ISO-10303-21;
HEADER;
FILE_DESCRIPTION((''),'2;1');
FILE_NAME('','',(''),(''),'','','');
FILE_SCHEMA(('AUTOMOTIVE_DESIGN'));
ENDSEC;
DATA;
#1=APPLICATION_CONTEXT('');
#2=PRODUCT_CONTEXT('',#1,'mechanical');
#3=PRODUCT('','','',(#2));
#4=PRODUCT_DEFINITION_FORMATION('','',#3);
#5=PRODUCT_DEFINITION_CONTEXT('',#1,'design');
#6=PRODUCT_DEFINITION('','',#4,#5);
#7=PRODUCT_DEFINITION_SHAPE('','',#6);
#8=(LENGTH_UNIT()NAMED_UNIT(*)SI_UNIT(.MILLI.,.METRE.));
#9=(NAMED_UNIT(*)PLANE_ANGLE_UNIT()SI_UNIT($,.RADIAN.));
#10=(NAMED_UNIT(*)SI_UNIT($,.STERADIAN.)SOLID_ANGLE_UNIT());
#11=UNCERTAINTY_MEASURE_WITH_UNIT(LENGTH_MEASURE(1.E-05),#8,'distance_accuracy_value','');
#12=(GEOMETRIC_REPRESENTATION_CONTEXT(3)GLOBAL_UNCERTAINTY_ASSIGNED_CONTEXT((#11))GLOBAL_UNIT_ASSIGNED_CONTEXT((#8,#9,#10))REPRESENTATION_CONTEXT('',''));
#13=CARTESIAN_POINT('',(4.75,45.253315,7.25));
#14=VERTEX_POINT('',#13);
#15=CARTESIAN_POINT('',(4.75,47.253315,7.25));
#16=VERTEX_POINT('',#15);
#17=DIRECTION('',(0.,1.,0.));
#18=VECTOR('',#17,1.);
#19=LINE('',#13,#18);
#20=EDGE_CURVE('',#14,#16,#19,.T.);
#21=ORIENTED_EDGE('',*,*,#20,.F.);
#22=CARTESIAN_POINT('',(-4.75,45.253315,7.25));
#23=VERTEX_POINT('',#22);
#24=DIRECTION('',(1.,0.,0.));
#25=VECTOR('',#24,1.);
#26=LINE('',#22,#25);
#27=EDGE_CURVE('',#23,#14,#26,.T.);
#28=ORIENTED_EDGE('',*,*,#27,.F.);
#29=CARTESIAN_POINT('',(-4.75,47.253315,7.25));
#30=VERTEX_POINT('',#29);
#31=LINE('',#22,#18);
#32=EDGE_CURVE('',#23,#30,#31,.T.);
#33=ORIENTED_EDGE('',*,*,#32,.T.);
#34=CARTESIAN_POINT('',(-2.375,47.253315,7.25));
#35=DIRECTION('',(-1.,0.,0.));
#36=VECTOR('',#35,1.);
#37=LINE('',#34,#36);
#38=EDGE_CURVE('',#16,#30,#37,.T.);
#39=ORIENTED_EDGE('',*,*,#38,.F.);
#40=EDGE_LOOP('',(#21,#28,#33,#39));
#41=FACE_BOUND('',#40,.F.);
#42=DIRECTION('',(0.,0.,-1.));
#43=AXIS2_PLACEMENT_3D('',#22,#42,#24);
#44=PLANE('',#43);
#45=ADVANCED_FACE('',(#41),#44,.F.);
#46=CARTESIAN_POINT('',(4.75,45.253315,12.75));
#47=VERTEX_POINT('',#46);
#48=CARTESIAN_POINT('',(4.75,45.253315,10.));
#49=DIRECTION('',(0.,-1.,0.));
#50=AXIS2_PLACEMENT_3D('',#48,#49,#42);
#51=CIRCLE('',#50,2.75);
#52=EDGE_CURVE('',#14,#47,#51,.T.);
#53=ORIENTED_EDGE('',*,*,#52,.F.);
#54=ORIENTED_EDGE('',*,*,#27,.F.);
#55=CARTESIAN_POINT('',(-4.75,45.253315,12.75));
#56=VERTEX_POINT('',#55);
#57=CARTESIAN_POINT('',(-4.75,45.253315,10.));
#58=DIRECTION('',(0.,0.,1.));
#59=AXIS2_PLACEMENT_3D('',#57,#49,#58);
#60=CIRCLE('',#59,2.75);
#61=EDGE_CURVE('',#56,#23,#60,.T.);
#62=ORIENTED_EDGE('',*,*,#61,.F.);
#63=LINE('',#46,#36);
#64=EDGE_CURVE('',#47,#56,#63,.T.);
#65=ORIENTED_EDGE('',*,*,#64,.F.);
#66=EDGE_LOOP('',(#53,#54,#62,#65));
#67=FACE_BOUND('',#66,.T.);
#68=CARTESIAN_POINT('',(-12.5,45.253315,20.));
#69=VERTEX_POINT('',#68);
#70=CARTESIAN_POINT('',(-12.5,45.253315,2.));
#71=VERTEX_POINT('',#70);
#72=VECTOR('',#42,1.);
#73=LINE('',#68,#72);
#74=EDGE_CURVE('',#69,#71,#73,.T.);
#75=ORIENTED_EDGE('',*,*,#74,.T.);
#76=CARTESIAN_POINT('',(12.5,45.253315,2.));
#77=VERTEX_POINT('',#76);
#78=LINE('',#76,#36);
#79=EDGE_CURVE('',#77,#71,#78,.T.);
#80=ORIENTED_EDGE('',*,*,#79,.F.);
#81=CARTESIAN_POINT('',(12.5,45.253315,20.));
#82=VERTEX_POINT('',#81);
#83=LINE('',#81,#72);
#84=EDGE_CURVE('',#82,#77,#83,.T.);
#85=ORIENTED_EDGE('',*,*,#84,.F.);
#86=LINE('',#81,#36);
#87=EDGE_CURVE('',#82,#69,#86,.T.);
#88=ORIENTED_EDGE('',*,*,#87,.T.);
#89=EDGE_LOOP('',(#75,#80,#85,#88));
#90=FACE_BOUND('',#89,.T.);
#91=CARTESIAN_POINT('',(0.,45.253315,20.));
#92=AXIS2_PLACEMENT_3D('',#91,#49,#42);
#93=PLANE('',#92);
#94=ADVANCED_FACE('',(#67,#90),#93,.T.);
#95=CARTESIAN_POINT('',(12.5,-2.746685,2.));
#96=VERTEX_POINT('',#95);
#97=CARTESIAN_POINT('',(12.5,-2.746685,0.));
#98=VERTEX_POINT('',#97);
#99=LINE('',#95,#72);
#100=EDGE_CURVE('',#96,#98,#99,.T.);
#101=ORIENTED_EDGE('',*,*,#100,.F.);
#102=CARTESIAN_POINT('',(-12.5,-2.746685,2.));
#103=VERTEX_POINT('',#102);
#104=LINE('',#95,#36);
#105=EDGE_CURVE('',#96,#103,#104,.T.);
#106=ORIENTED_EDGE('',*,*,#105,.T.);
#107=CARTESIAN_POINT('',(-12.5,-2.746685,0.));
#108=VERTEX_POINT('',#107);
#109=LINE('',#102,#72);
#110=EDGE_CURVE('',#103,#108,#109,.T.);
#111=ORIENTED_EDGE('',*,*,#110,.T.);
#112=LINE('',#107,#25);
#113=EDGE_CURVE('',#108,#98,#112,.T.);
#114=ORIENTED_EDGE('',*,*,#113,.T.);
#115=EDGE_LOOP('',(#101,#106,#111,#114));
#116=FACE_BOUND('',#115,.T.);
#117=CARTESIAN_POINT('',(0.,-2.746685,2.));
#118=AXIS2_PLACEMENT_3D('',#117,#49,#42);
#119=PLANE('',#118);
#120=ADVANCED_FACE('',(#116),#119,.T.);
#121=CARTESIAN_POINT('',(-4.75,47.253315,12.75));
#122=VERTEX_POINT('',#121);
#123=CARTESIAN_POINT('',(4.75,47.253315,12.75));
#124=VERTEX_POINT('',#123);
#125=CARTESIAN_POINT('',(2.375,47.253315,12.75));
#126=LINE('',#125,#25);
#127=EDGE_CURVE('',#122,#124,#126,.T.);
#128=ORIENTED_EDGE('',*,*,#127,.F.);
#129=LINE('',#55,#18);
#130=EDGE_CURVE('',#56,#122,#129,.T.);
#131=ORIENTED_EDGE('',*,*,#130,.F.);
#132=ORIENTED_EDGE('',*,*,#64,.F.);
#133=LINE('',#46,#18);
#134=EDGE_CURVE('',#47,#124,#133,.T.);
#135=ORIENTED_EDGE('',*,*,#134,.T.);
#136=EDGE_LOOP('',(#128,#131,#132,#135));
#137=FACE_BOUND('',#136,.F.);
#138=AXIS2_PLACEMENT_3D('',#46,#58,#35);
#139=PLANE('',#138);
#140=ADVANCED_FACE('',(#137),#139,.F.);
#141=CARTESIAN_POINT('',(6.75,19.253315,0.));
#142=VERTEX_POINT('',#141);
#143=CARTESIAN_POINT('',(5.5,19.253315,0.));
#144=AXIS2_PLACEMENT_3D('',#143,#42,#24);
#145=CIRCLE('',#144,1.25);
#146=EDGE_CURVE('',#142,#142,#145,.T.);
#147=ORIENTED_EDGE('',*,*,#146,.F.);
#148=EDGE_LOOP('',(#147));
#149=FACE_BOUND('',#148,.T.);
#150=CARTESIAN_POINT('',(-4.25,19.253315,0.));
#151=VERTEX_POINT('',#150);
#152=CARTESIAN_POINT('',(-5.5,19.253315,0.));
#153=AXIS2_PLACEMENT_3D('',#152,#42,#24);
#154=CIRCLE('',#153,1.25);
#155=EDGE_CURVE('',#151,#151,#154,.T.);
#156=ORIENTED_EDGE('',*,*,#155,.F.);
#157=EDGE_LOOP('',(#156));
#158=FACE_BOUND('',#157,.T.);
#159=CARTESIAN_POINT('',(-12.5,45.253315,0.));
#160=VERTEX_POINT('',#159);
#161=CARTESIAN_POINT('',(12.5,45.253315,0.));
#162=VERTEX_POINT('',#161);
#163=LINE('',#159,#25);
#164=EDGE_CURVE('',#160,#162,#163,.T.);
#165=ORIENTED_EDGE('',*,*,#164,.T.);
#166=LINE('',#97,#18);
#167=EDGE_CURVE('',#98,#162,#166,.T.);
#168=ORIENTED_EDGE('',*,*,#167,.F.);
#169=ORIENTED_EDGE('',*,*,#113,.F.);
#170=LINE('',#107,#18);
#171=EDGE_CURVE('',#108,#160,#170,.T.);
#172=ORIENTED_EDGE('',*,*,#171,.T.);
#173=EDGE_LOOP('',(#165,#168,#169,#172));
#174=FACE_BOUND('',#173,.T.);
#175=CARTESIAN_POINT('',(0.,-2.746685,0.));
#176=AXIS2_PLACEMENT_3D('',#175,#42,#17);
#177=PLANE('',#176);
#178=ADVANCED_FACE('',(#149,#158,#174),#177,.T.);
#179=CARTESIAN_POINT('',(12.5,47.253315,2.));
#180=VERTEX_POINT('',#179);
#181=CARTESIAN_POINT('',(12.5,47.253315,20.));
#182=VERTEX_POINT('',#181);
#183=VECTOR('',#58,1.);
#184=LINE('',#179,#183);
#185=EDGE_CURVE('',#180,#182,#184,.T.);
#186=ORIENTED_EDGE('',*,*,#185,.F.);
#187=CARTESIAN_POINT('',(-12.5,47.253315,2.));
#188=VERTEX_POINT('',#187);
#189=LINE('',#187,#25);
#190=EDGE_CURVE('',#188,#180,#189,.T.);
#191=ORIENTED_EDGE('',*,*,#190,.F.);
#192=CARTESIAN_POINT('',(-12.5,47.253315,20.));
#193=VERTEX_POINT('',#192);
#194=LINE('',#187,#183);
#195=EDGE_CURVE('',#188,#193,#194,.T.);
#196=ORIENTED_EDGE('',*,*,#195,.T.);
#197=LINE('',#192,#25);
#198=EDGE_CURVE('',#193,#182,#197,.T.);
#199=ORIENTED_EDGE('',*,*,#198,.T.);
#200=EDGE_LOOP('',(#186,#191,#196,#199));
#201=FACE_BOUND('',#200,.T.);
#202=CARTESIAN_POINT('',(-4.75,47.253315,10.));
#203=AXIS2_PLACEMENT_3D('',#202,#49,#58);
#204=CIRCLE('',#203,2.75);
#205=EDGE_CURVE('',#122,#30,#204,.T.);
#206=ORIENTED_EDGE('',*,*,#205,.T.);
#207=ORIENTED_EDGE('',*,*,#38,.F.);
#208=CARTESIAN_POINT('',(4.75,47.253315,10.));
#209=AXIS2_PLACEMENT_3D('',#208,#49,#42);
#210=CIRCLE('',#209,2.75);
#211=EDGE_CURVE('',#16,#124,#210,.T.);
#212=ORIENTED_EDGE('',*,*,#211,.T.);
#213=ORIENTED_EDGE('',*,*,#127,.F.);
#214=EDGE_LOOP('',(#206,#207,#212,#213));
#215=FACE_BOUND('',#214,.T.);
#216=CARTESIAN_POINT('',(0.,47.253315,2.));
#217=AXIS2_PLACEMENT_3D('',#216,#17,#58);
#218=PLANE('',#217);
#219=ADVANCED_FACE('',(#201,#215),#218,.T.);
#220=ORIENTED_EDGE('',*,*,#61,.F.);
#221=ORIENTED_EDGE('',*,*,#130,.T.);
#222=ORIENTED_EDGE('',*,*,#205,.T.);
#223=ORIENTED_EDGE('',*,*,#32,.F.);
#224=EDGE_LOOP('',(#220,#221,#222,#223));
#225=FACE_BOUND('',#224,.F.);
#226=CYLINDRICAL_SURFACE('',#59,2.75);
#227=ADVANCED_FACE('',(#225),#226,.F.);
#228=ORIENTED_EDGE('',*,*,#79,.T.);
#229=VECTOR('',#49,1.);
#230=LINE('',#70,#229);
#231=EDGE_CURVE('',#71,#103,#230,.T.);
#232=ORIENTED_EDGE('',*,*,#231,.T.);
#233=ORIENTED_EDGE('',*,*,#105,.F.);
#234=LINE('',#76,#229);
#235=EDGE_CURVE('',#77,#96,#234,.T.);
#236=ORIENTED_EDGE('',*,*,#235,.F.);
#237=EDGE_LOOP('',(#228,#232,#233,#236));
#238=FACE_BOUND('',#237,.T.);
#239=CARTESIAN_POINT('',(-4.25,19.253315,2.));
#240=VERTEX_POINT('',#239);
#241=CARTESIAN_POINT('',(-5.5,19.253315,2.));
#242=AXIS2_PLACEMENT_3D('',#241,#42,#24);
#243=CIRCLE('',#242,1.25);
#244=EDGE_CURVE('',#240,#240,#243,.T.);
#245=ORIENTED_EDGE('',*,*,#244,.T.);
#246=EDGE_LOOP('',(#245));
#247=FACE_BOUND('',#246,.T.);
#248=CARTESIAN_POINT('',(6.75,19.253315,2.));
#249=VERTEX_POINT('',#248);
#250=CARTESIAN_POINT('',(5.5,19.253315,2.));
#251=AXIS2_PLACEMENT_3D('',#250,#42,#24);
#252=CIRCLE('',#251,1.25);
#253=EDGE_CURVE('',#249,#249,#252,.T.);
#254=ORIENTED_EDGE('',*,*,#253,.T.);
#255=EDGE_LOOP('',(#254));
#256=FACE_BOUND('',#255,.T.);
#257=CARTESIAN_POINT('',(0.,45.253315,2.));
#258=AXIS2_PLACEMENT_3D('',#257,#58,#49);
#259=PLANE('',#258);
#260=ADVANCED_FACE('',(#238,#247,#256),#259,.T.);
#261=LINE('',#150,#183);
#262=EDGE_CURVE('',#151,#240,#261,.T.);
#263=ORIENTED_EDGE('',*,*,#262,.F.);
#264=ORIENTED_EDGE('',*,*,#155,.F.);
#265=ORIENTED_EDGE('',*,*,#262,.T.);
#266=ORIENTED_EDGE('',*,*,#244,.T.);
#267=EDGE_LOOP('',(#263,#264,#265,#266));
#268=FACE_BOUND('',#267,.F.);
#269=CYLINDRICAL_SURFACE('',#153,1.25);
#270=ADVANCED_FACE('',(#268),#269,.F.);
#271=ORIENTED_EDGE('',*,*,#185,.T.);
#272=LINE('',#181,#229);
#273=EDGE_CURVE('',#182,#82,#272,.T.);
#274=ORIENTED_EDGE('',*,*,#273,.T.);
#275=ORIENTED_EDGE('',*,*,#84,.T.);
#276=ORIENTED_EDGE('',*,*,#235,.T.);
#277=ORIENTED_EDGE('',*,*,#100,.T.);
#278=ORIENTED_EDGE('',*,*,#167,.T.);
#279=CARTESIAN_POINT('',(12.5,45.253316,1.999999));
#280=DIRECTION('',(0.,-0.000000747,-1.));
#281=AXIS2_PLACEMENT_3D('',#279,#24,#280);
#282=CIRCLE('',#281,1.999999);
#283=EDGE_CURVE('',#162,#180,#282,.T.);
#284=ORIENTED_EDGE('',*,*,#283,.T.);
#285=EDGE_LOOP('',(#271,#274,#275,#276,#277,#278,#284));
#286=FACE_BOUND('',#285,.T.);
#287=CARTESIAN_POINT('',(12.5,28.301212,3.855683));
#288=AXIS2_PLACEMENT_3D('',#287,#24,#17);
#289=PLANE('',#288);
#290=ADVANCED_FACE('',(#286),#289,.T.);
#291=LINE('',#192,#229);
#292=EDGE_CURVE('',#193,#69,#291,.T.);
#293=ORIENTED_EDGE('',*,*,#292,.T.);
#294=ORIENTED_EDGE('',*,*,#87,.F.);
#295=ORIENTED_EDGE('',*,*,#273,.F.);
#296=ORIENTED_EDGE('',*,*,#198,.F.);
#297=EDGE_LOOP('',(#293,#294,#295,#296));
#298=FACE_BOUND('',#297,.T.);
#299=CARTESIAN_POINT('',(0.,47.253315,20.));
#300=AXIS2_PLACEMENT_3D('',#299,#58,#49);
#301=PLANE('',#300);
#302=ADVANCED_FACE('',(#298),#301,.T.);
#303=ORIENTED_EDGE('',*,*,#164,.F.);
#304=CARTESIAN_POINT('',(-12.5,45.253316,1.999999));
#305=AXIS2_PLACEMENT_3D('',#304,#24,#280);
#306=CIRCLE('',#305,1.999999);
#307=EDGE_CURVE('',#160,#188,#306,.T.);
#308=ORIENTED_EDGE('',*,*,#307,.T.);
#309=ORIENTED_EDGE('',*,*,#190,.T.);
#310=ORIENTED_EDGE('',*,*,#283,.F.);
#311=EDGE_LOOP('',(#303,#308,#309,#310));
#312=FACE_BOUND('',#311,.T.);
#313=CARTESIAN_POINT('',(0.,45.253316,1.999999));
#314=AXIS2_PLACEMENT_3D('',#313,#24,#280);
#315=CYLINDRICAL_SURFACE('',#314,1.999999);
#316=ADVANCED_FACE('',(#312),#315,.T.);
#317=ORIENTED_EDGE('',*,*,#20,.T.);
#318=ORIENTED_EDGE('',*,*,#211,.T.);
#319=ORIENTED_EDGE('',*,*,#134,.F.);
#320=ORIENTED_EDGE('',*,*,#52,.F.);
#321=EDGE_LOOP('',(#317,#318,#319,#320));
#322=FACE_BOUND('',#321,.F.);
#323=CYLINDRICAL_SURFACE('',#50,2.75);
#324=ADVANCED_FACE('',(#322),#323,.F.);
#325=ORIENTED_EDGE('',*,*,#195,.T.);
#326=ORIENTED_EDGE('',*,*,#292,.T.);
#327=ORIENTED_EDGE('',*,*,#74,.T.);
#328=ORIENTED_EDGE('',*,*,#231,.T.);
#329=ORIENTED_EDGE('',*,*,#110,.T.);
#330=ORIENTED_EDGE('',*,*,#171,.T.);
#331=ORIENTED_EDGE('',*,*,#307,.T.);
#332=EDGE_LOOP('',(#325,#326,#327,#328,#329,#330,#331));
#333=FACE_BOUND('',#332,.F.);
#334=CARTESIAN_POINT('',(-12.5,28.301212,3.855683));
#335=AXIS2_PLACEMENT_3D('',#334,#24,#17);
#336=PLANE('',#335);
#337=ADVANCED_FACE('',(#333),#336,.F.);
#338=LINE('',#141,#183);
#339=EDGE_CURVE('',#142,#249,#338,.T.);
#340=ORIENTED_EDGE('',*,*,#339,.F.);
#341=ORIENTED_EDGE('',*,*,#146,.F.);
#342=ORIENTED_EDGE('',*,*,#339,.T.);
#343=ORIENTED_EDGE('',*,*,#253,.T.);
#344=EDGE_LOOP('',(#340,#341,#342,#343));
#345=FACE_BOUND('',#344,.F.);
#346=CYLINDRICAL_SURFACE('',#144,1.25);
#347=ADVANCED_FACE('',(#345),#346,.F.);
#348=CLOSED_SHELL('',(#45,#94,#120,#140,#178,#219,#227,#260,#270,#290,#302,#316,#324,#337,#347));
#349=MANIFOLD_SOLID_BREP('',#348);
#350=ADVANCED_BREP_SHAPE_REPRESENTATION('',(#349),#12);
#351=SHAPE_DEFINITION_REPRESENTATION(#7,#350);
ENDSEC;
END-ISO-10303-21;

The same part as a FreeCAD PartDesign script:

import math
import FreeCAD as App
import Part
import Sketcher
from FreeCAD import Vector

doc = App.newDocument("Part")
body = doc.addObject("PartDesign::Body", "Body")

# Sketch on YZ plane
sketch1 = body.newObject("Sketcher::SketchObject", "Sketch")
sketch1.AttachmentSupport = (doc.getObject("YZ_Plane"), [""])
sketch1.MapMode = "FlatFace"
sketch1.addGeometry(Part.LineSegment(Vector(-2.746685, 2, 0), Vector(-2.746685, 0, 0)), False)
sketch1.addGeometry(Part.LineSegment(Vector(-2.746685, 0, 0), Vector(45.253315, 0, 0)), False)
sketch1.addGeometry(Part.ArcOfCircle(Part.Circle(Vector(45.253316, 1.999999, 0), Vector(0, 0, 1), 1.999999), math.radians(-90.000043), math.radians(0.000043)), False)
sketch1.addGeometry(Part.LineSegment(Vector(47.253315, 2, 0), Vector(47.253315, 20, 0)), False)
sketch1.addGeometry(Part.LineSegment(Vector(47.253315, 20, 0), Vector(45.253315, 20, 0)), False)
sketch1.addGeometry(Part.LineSegment(Vector(45.253315, 20, 0), Vector(45.253315, 2, 0)), False)
sketch1.addGeometry(Part.LineSegment(Vector(45.253315, 2, 0), Vector(-2.746685, 2, 0)), False)
sketch1.addConstraint(Sketcher.Constraint("Coincident", 0, 2, 1, 1))
sketch1.addConstraint(Sketcher.Constraint("Tangent", 1, 2, 2, 1))
sketch1.addConstraint(Sketcher.Constraint("Tangent", 2, 2, 3, 1))
sketch1.addConstraint(Sketcher.Constraint("Coincident", 3, 2, 4, 1))
sketch1.addConstraint(Sketcher.Constraint("Coincident", 4, 2, 5, 1))
sketch1.addConstraint(Sketcher.Constraint("Coincident", 5, 2, 6, 1))
sketch1.addConstraint(Sketcher.Constraint("Coincident", 6, 2, 0, 1))
sketch1.addConstraint(Sketcher.Constraint("Vertical", 0))
sketch1.addConstraint(Sketcher.Constraint("Horizontal", 1))
sketch1.addConstraint(Sketcher.Constraint("Vertical", 3))
sketch1.addConstraint(Sketcher.Constraint("Horizontal", 4))
sketch1.addConstraint(Sketcher.Constraint("Vertical", 5))
sketch1.addConstraint(Sketcher.Constraint("Horizontal", 6))
sketch1.addConstraint(Sketcher.Constraint("Coincident", 5, 2, 2, 3))
sketch1.addConstraint(Sketcher.Constraint("PointOnObject", 0, 2, -1))
sketch1.addConstraint(Sketcher.Constraint("Radius", 2, 1.999999))
sketch1.addConstraint(Sketcher.Constraint("DistanceX", 1, 1, 1, 2, 48.0))
sketch1.addConstraint(Sketcher.Constraint("DistanceY", 3, 1, 3, 2, 18.0))
sketch1.addConstraint(Sketcher.Constraint("DistanceX", -1, 1, 2, 3, 45.253316))
pad1 = body.newObject("PartDesign::Pad", "Pad")
pad1.Profile = sketch1
pad1.Length = 25
pad1.Midplane = True

# Sketch on XZ plane
sketch2 = body.newObject("Sketcher::SketchObject", "Sketch001")
sketch2.AttachmentSupport = (doc.getObject("XZ_Plane"), [""])
sketch2.MapMode = "FlatFace"
sketch2.AttachmentOffset = App.Placement(Vector(0, 0, -45.253315), App.Rotation())
sketch2.addGeometry(Part.LineSegment(Vector(4.75, 12.75, 0), Vector(-4.75, 12.75, 0)), False)
sketch2.addGeometry(Part.ArcOfCircle(Part.Circle(Vector(-4.75, 10, 0), Vector(0, 0, 1), 2.75), math.radians(90), math.radians(270)), False)
sketch2.addGeometry(Part.LineSegment(Vector(-4.75, 7.25, 0), Vector(4.75, 7.25, 0)), False)
sketch2.addGeometry(Part.ArcOfCircle(Part.Circle(Vector(4.75, 10, 0), Vector(0, 0, 1), 2.75), math.radians(-90), math.radians(90)), False)
sketch2.addConstraint(Sketcher.Constraint("Tangent", 0, 2, 1, 1))
sketch2.addConstraint(Sketcher.Constraint("Tangent", 1, 2, 2, 1))
sketch2.addConstraint(Sketcher.Constraint("Tangent", 2, 2, 3, 1))
sketch2.addConstraint(Sketcher.Constraint("Tangent", 3, 2, 0, 1))
sketch2.addConstraint(Sketcher.Constraint("Horizontal", 0))
sketch2.addConstraint(Sketcher.Constraint("Horizontal", 2))
sketch2.addConstraint(Sketcher.Constraint("Radius", 1, 2.75))
sketch2.addConstraint(Sketcher.Constraint("DistanceX", 0, 2, 0, 1, 9.5))
sketch2.addConstraint(Sketcher.Constraint("DistanceY", -1, 1, 1, 3, 10.0))
sketch2.addConstraint(Sketcher.Constraint("DistanceX", 1, 3, -1, 1, 4.75))
pocket1 = body.newObject("PartDesign::Pocket", "Pocket")
pocket1.Profile = sketch2
pocket1.Length = 25

# Sketch on XY plane
sketch3 = body.newObject("Sketcher::SketchObject", "Sketch002")
sketch3.AttachmentSupport = (doc.getObject("XY_Plane"), [""])
sketch3.MapMode = "FlatFace"
sketch3.addGeometry(Part.Circle(Vector(5.5, 19.253315, 0), Vector(0, 0, 1), 1.25), False)
sketch3.addGeometry(Part.Circle(Vector(-5.5, 19.253315, 0), Vector(0, 0, 1), 1.25), False)
sketch3.addConstraint(Sketcher.Constraint("Equal", 0, 1))
sketch3.addConstraint(Sketcher.Constraint("Symmetric", 0, 3, 1, 3, -2))
sketch3.addConstraint(Sketcher.Constraint("Diameter", 0, 2.5))
sketch3.addConstraint(Sketcher.Constraint("DistanceX", 1, 3, 0, 3, 11.0))
sketch3.addConstraint(Sketcher.Constraint("DistanceY", -1, 1, 0, 3, 19.253315))
pocket2 = body.newObject("PartDesign::Pocket", "Pocket001")
pocket2.Profile = sketch3
pocket2.Length = 25
pocket2.Reversed = True

doc.recompute()
